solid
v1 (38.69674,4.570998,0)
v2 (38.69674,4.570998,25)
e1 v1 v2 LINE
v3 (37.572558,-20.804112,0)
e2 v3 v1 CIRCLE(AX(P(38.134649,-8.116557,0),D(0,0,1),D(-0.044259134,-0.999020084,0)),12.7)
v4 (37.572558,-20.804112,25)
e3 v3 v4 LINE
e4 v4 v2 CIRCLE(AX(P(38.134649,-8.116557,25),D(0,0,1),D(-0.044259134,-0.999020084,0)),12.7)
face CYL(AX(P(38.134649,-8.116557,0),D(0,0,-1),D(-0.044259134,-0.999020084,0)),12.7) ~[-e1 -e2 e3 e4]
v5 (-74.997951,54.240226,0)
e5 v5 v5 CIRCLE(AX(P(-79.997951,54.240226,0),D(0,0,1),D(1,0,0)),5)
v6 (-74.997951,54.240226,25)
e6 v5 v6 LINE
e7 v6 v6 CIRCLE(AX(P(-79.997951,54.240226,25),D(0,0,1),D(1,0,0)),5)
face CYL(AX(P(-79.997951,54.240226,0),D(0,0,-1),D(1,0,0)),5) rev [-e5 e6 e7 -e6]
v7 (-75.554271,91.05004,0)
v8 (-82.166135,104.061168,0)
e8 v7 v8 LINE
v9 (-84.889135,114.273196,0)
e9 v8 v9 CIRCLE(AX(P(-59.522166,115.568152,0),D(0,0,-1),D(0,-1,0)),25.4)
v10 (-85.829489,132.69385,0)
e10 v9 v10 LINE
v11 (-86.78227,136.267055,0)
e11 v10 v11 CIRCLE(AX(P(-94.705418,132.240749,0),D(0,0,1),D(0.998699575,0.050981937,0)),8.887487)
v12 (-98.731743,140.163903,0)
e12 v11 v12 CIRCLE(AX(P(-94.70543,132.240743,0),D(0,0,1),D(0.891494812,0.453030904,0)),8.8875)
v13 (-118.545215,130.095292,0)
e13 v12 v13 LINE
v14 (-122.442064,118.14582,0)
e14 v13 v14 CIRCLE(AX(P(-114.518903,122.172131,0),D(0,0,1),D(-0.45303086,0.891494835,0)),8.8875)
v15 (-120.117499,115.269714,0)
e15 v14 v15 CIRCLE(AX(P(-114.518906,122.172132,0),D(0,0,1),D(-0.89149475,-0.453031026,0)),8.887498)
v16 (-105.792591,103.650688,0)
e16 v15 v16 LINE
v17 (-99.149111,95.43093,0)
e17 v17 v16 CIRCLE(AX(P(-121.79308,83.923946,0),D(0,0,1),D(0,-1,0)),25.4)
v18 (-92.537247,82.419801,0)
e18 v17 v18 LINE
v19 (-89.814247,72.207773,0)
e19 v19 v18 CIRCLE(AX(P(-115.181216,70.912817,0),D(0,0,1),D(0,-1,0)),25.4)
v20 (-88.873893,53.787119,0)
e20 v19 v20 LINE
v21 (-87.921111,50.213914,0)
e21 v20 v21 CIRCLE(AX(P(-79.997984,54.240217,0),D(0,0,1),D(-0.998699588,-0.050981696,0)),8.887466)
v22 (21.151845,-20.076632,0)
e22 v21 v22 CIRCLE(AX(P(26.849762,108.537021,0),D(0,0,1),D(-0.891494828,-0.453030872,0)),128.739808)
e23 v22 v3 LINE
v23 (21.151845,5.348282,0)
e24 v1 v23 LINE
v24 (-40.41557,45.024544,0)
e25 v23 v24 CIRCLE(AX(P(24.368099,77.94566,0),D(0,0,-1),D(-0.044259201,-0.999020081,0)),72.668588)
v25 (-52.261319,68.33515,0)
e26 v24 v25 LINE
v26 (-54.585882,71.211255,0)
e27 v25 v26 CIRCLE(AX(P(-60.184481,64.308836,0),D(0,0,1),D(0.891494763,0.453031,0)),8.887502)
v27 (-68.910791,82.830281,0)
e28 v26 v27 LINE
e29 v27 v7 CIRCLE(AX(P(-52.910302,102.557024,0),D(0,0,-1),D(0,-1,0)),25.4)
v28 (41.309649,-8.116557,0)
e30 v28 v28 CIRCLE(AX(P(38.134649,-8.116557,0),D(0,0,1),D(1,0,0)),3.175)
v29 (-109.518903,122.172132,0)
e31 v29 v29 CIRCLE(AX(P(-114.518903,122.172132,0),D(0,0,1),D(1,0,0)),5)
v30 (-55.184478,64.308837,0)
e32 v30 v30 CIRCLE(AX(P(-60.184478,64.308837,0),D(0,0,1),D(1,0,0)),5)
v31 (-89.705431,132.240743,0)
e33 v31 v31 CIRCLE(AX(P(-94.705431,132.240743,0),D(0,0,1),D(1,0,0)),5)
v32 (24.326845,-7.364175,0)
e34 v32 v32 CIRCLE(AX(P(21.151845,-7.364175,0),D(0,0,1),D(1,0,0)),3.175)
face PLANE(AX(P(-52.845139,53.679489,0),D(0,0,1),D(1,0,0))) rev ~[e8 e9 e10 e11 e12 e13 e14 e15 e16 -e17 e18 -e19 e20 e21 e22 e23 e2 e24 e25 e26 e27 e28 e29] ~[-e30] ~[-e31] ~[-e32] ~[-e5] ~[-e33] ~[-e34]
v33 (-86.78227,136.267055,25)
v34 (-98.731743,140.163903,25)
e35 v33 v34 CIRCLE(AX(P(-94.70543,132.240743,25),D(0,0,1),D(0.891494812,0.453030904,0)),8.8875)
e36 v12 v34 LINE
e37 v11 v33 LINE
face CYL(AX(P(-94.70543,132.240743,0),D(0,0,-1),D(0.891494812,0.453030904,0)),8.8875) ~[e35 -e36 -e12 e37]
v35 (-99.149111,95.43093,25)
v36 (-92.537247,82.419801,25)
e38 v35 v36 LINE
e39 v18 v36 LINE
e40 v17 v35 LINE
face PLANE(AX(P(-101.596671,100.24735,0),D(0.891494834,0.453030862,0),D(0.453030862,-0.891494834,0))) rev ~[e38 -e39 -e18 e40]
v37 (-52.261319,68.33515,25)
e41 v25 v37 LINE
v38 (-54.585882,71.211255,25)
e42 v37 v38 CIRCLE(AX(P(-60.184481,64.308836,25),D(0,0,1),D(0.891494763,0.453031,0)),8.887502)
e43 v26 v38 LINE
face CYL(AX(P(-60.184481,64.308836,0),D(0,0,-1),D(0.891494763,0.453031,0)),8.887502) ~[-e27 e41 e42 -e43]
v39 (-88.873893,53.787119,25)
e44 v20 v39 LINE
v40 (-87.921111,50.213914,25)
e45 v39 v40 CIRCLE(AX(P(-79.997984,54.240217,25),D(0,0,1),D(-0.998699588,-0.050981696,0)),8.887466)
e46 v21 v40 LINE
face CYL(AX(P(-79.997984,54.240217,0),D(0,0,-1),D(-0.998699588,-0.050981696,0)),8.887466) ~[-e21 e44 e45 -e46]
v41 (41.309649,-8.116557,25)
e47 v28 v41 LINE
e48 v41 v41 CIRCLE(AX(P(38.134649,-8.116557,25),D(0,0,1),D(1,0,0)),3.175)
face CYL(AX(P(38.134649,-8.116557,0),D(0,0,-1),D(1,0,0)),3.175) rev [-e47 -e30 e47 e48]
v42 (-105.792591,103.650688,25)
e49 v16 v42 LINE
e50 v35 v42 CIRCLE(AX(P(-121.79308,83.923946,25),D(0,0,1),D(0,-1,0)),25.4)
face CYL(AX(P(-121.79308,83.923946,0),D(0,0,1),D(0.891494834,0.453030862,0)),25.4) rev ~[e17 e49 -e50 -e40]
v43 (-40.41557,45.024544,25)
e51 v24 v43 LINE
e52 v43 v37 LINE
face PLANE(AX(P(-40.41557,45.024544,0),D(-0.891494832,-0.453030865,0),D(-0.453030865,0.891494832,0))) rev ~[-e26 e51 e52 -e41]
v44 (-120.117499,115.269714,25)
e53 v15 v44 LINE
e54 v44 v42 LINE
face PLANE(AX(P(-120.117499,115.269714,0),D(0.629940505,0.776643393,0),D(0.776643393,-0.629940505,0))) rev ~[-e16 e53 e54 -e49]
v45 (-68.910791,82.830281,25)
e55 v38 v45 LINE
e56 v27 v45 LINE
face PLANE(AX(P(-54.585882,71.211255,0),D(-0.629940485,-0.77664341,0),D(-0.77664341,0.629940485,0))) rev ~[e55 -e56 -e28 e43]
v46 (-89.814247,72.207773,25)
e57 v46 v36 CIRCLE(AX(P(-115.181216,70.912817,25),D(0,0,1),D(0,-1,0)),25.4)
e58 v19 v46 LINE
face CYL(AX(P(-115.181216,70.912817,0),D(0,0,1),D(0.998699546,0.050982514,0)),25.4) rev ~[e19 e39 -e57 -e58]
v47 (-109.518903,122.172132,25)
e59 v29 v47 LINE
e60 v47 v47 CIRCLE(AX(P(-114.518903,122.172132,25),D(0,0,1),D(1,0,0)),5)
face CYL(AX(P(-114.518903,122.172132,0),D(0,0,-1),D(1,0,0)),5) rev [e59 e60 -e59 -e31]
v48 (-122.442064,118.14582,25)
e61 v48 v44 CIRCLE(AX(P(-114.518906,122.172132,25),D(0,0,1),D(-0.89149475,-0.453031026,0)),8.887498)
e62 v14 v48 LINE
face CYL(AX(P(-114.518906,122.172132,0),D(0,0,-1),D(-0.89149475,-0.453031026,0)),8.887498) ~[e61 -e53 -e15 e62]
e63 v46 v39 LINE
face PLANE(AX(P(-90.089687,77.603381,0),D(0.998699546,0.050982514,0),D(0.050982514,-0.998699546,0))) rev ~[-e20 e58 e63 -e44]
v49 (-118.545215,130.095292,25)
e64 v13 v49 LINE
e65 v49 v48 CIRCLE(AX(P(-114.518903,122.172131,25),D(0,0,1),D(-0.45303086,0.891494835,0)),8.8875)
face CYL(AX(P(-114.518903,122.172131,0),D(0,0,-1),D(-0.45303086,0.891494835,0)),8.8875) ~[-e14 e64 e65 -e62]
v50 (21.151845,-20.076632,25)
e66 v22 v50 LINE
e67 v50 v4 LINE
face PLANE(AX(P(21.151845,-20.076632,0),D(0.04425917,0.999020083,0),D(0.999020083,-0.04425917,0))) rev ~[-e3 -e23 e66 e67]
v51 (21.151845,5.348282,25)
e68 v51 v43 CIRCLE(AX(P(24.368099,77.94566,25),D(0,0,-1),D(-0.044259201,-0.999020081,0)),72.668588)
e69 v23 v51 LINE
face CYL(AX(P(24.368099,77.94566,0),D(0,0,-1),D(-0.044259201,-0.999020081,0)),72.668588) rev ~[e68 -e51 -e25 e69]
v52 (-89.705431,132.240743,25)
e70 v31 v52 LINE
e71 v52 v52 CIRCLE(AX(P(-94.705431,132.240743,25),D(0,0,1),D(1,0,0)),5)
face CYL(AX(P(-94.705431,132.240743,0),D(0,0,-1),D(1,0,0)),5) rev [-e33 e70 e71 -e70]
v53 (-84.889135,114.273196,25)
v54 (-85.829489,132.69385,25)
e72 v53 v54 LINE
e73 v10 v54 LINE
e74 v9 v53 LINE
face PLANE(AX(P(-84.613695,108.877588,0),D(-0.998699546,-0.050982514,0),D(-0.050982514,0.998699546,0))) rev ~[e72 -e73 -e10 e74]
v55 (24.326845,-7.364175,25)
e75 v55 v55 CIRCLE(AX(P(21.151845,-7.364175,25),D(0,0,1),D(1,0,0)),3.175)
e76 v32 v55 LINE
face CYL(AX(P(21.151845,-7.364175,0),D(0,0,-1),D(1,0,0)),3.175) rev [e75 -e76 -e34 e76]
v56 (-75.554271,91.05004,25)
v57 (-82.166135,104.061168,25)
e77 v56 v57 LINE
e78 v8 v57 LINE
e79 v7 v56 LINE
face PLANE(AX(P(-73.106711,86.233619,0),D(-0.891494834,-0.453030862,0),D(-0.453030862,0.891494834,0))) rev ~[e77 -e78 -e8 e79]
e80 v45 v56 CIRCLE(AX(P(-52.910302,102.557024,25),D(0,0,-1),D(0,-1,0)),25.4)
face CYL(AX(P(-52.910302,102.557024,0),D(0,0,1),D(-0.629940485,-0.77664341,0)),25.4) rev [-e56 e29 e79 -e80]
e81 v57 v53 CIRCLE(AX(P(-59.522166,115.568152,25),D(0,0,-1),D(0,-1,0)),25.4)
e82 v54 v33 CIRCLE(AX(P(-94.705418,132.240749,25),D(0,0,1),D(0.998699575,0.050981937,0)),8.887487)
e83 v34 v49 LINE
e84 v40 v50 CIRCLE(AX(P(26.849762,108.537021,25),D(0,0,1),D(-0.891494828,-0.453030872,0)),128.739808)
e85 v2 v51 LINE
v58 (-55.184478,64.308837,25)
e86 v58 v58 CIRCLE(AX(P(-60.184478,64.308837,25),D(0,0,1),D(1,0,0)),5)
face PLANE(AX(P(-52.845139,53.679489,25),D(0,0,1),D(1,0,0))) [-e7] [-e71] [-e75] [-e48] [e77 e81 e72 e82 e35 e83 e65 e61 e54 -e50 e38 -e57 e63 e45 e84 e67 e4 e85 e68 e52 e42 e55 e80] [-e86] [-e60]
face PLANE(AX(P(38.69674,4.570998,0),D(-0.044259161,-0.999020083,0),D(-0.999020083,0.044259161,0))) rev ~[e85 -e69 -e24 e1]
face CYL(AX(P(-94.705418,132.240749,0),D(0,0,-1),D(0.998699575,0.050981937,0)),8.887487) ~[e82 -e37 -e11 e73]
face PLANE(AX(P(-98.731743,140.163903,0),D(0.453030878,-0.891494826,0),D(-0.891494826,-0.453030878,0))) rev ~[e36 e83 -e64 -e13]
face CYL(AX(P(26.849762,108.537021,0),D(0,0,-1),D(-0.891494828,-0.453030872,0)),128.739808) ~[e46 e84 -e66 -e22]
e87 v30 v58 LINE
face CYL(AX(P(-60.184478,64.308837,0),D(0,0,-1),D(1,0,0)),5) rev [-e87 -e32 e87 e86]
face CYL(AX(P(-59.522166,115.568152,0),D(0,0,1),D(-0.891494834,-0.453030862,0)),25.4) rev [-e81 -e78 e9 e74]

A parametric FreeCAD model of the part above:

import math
import FreeCAD as App
import Part
import Sketcher
Q = App.Units.Quantity


def edges_at(feature, points):
    """Names of the edges that pass closest to the given points."""
    edges = feature.Shape.Edges
    near = lambda p: min(range(len(edges)), key=lambda i: edges[i].distToShape(Part.Vertex(*p))[0])
    return sorted({f"Edge{near(p) + 1}" for p in points})

doc = App.newDocument("Part")
body = doc.addObject("PartDesign::Body", "Body")

# Sketch on XY plane
sketch1 = body.newObject("Sketcher::SketchObject", "Sketch")
sketch1.AttachmentSupport = (doc.getObject("XY_Plane"), [""])
sketch1.MapMode = "FlatFace"
sketch1.addGeometry([
    Part.ArcOfCircle(Part.Circle(App.Vector(26.849762, 108.537021, 0), App.Vector(0, 0, 1), 128.739808), math.radians(-153.061692), math.radians(-92.536692)),  # 0
    Part.LineSegment(App.Vector(21.151845, -20.076632, 0), App.Vector(37.572558, -20.804112, 0)),  # 1
    Part.ArcOfCircle(Part.Circle(App.Vector(38.134649, -8.116557, 0), App.Vector(0, 0, 1), 12.7), math.radians(-92.53669), math.radians(87.46331)),  # 2
    Part.LineSegment(App.Vector(38.69674, 4.570998, 0), App.Vector(21.151845, 5.348282, 0)),  # 3
    Part.ArcOfCircle(Part.Circle(App.Vector(24.368099, 77.94566, 0), App.Vector(0, 0, 1), 72.668588), math.radians(-153.061689), math.radians(-92.536694)),  # 4
    Part.LineSegment(App.Vector(-40.41557, 45.024544, 0), App.Vector(-52.261319, 68.33515, 0)),  # 5
    Part.ArcOfCircle(Part.Circle(App.Vector(-60.184481, 64.308836, 0), App.Vector(0, 0, 1), 8.887502), math.radians(26.938317), math.radians(50.954258)),  # 6
    Part.LineSegment(App.Vector(-54.585882, 71.211255, 0), App.Vector(-73.106711, 86.233619, 0)),  # 7
    Part.LineSegment(App.Vector(-73.106711, 86.233619, 0), App.Vector(-84.613695, 108.877588, 0)),  # 8
    Part.LineSegment(App.Vector(-84.613695, 108.877588, 0), App.Vector(-85.829489, 132.69385, 0)),  # 9
    Part.ArcOfCircle(Part.Circle(App.Vector(-94.705418, 132.240749, 0), App.Vector(0, 0, 1), 8.887487), math.radians(2.922317), math.radians(26.938312)),  # 10
    Part.ArcOfCircle(Part.Circle(App.Vector(-94.70543, 132.240743, 0), App.Vector(0, 0, 1), 8.8875), math.radians(26.938311), math.radians(116.938312)),  # 11
    Part.LineSegment(App.Vector(-98.731743, 140.163903, 0), App.Vector(-118.545215, 130.095292, 0)),  # 12
    Part.ArcOfCircle(Part.Circle(App.Vector(-114.518903, 122.172131, 0), App.Vector(0, 0, 1), 8.8875), math.radians(116.938308), math.radians(206.938304)),  # 13
    Part.ArcOfCircle(Part.Circle(App.Vector(-114.518906, 122.172132, 0), App.Vector(0, 0, 1), 8.887498), math.radians(-153.061682), math.radians(-129.045715)),  # 14
    Part.LineSegment(App.Vector(-120.117499, 115.269714, 0), App.Vector(-101.596671, 100.24735, 0)),  # 15
    Part.LineSegment(App.Vector(-101.596671, 100.24735, 0), App.Vector(-90.089687, 77.603381, 0)),  # 16
    Part.LineSegment(App.Vector(-90.089687, 77.603381, 0), App.Vector(-88.873893, 53.787119, 0)),  # 17
    Part.ArcOfCircle(Part.Circle(App.Vector(-79.997984, 54.240217, 0), App.Vector(0, 0, 1), 8.887466), math.radians(-177.077697), math.radians(-153.061644)),  # 18
    Part.Circle(App.Vector(-79.997951, 54.240226, 0), App.Vector(0, 0, 1), 5),  # 19
    Part.Circle(App.Vector(21.151845, -7.364175, 0), App.Vector(0, 0, 1), 3.175),  # 20
    Part.Circle(App.Vector(38.134649, -8.116557, 0), App.Vector(0, 0, 1), 3.175),  # 21
    Part.Circle(App.Vector(-60.184478, 64.308837, 0), App.Vector(0, 0, 1), 5),  # 22
    Part.Circle(App.Vector(-114.518903, 122.172132, 0), App.Vector(0, 0, 1), 5),  # 23
    Part.Circle(App.Vector(-94.705431, 132.240743, 0), App.Vector(0, 0, 1), 5),  # 24
], False)
sketch1.addConstraint([
    Sketcher.Constraint("Tangent", 0, 2, 1, 1),
    Sketcher.Constraint("Tangent", 1, 2, 2, 1),
    Sketcher.Constraint("Tangent", 2, 2, 3, 1),
    Sketcher.Constraint("Tangent", 3, 2, 4, 2),
    Sketcher.Constraint("Tangent", 4, 1, 5, 1),
    Sketcher.Constraint("Tangent", 5, 2, 6, 1),
    Sketcher.Constraint("Tangent", 6, 2, 7, 1),
    Sketcher.Constraint("Coincident", 7, 2, 8, 1),
    Sketcher.Constraint("Coincident", 8, 2, 9, 1),
    Sketcher.Constraint("Tangent", 9, 2, 10, 1),
    Sketcher.Constraint("Tangent", 10, 2, 11, 1),
    Sketcher.Constraint("Tangent", 11, 2, 12, 1),
    Sketcher.Constraint("Tangent", 12, 2, 13, 1),
    Sketcher.Constraint("Tangent", 13, 2, 14, 1),
    Sketcher.Constraint("Tangent", 14, 2, 15, 1),
    Sketcher.Constraint("Coincident", 15, 2, 16, 1),
    Sketcher.Constraint("Coincident", 16, 2, 17, 1),
    Sketcher.Constraint("Tangent", 17, 2, 18, 1),
    Sketcher.Constraint("Tangent", 18, 2, 0, 1),
    Sketcher.Constraint("Coincident", 21, 3, 2, 3),
    Sketcher.Constraint("Coincident", 22, 3, 6, 3),
    Sketcher.Constraint("Coincident", 23, 3, 13, 3),
    Sketcher.Constraint("Coincident", 24, 3, 11, 3),
    Sketcher.Constraint("Equal", 6, 11),
    Sketcher.Constraint("Equal", 11, 13),
    Sketcher.Constraint("Equal", 20, 21),
    Sketcher.Constraint("Equal", 19, 22),
    Sketcher.Constraint("Equal", 22, 23),
    Sketcher.Constraint("Equal", 23, 24),
    Sketcher.Constraint("Parallel", 1, 3),
    Sketcher.Constraint("Parallel", 5, 8),
    Sketcher.Constraint("Perpendicular", 8, 12),
    Sketcher.Constraint("Parallel", 7, 15),
    Sketcher.Constraint("Perpendicular", 12, 16),
    Sketcher.Constraint("Parallel", 9, 17),
    Sketcher.Constraint("Vertical", 20, 3, 0, 2),
    Sketcher.Constraint("Vertical", 0, 2, 3, 2),
    Sketcher.Constraint("Equal", 7, 9),
    Sketcher.Constraint("Equal", 9, 15),
    Sketcher.Constraint("Equal", 8, 16),
    Sketcher.Constraint("Equal", 15, 17),
    Sketcher.Constraint("Radius", 2, Q("0.5 in")),
    Sketcher.Constraint("Diameter", 20, Q("0.25 in")),
    Sketcher.Constraint("Distance", 8, Q("1 in")),
    Sketcher.Constraint("Diameter", 19, Q("10 mm")),
    Sketcher.Constraint("Radius", 11, Q("8.8875 mm")),
    Sketcher.Constraint("Distance", 12, Q("0.875 in")),
    Sketcher.Constraint("Radius", 0, Q("128.739808 mm")),
    Sketcher.Constraint("Radius", 4, Q("72.668588 mm")),
    Sketcher.Constraint("Radius", 10, Q("8.887487 mm")),
    Sketcher.Constraint("Radius", 14, Q("8.887498 mm")),
    Sketcher.Constraint("Radius", 18, Q("8.887466 mm")),
    Sketcher.Constraint("DistanceX", -1, 1, 4, 3, Q("24.368099 mm")),
    Sketcher.Constraint("DistanceY", -1, 1, 2, 2, Q("4.570998 mm")),
    Sketcher.Constraint("DistanceX", 14, 2, -1, 1, Q("120.117499 mm")),
    Sketcher.Constraint("DistanceY", 2, 3, 11, 3, Q("140.3573 mm")),
    Sketcher.Constraint("DistanceX", 13, 3, 4, 3, Q("138.887002 mm")),
    Sketcher.Constraint("DistanceY", 20, 3, 19, 3, Q("61.604401 mm")),
    Sketcher.Constraint("DistanceY", 10, 3, 9, 2, Q("0.453101 mm")),
    Sketcher.Constraint("Distance", 1, Q("16.43682 mm")),
    Sketcher.Constraint("DistanceX", 6, 3, -1, 1, Q("60.184481 mm")),
    Sketcher.Constraint("DistanceX", 19, 3, -1, 1, Q("79.997951 mm")),
    Sketcher.Constraint("DistanceX", 10, 2, -1, 1, Q("86.78227 mm")),
    Sketcher.Constraint("DistanceY", -1, 1, 13, 2, Q("118.14582 mm")),
    Sketcher.Constraint("DistanceY", 19, 3, 6, 3, Q("10.06861 mm")),
])
pad1 = body.newObject("PartDesign::Pad", "Pad")
pad1.Profile = sketch1
pad1.Length = 25
doc.recompute()

fillet = body.newObject("PartDesign::Fillet", "Fillet")
fillet.Base = (pad1, edges_at(pad1, [
    (-73.107, 86.234, 12.5),
    (-84.614, 108.878, 12.5),
    (-101.597, 100.247, 12.5),
    (-90.09, 77.603, 12.5),
]))
fillet.Radius = Q("1 in")

doc.recompute()
